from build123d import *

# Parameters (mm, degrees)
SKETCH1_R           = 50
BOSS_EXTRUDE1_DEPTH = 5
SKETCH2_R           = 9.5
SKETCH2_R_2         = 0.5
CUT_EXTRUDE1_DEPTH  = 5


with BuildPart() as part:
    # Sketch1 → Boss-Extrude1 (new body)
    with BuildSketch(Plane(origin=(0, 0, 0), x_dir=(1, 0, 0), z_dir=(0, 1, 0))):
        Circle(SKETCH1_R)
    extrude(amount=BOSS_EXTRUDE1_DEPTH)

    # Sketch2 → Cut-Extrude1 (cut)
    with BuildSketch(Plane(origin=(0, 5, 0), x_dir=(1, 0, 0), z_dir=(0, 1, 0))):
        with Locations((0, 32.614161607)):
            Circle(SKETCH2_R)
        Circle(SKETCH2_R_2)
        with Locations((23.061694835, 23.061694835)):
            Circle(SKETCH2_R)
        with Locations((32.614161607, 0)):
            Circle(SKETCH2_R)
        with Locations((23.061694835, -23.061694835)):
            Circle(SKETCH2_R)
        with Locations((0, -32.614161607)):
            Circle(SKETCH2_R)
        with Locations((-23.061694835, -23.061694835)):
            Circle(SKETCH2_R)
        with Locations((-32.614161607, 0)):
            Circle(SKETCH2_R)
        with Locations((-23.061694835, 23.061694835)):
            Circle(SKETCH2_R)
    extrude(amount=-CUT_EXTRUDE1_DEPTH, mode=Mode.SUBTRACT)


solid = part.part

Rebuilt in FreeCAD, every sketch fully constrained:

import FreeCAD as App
import Part
import Sketcher
from FreeCAD import Vector
Q = App.Units.Quantity

doc = App.newDocument("Part")
body = doc.addObject("PartDesign::Body", "Body")

sketch1 = body.newObject("Sketcher::SketchObject", "Sketch")
sketch1.AttachmentSupport = (doc.getObject("XZ_Plane"), [""])
sketch1.MapMode = "FlatFace"
sketch1.addGeometry(Part.Circle(Vector(0, 0, 0), Vector(0, 0, 1), 50), False)
sketch1.addConstraint(Sketcher.Constraint("Coincident", 0, 3, -1, 1))
sketch1.addConstraint(Sketcher.Constraint("Diameter", 0, Q("100 mm")))
pad1 = body.newObject("PartDesign::Pad", "Pad")
pad1.Profile = sketch1
pad1.Length = 5
pad1.Reversed = True

sketch2 = body.newObject("Sketcher::SketchObject", "Sketch001")
sketch2.AttachmentSupport = (doc.getObject("XZ_Plane"), [""])
sketch2.MapMode = "FlatFace"
sketch2.AttachmentOffset = App.Placement(Vector(0, 0, -5), App.Rotation())
sketch2.addGeometry(Part.Circle(Vector(0, -32.6, 0), Vector(0, 0, 1), 9.5), False)
sketch2.addGeometry(Part.Circle(Vector(0, 0, 0), Vector(0, 0, 1), 0.5), False)
sketch2.addGeometry(Part.Circle(Vector(23.1, -23.1, 0), Vector(0, 0, 1), 9.5), False)
sketch2.addGeometry(Part.Circle(Vector(32.6, 0, 0), Vector(0, 0, 1), 9.5), False)
sketch2.addGeometry(Part.Circle(Vector(23.1, 23.1, 0), Vector(0, 0, 1), 9.5), False)
sketch2.addGeometry(Part.Circle(Vector(0, 32.6, 0), Vector(0, 0, 1), 9.5), False)
sketch2.addGeometry(Part.Circle(Vector(-23.1, 23.1, 0), Vector(0, 0, 1), 9.5), False)
sketch2.addGeometry(Part.Circle(Vector(-32.6, 0, 0), Vector(0, 0, 1), 9.5), False)
sketch2.addGeometry(Part.Circle(Vector(-23.1, -23.1, 0), Vector(0, 0, 1), 9.5), False)
sketch2.addConstraint(Sketcher.Constraint("Coincident", 1, 3, -1, 1))
sketch2.addConstraint(Sketcher.Constraint("Equal", 0, 2))
sketch2.addConstraint(Sketcher.Constraint("Equal", 2, 3))
sketch2.addConstraint(Sketcher.Constraint("Equal", 3, 4))
sketch2.addConstraint(Sketcher.Constraint("Equal", 4, 5))
sketch2.addConstraint(Sketcher.Constraint("Equal", 5, 6))
sketch2.addConstraint(Sketcher.Constraint("Equal", 6, 7))
sketch2.addConstraint(Sketcher.Constraint("Equal", 7, 8))
sketch2.addConstraint(Sketcher.Constraint("Symmetric", 0, 3, 5, 3, -1, 1))
sketch2.addConstraint(Sketcher.Constraint("Symmetric", 2, 3, 6, 3, -1, 1))
sketch2.addConstraint(Sketcher.Constraint("Symmetric", 3, 3, 7, 3, -1, 1))
sketch2.addConstraint(Sketcher.Constraint("Symmetric", 4, 3, 8, 3, -1, 1))
sketch2.addConstraint(Sketcher.Constraint("Symmetric", 4, 3, 6, 3, -2))
sketch2.addConstraint(Sketcher.Constraint("PointOnObject", 0, 3, -2))
sketch2.addConstraint(Sketcher.Constraint("PointOnObject", 3, 3, -1))
sketch2.addConstraint(Sketcher.Constraint("Diameter", 0, Q("19 mm")))
sketch2.addConstraint(Sketcher.Constraint("Diameter", 1, Q("1 mm")))
sketch2.addConstraint(Sketcher.Constraint("DistanceY", 0, 3, -1, 1, Q("32.614162 mm")))
sketch2.addConstraint(Sketcher.Constraint("DistanceX", -1, 1, 3, 3, Q("32.614162 mm")))
sketch2.addConstraint(Sketcher.Constraint("DistanceY", 2, 3, 4, 3, Q("46.12339 mm")))
sketch2.addConstraint(Sketcher.Constraint("DistanceX", 6, 3, 4, 3, Q("46.12339 mm")))
pocket1 = body.newObject("PartDesign::Pocket", "Pocket")
pocket1.Profile = sketch2
pocket1.Length = 5
pocket1.Reversed = True

doc.recompute()
